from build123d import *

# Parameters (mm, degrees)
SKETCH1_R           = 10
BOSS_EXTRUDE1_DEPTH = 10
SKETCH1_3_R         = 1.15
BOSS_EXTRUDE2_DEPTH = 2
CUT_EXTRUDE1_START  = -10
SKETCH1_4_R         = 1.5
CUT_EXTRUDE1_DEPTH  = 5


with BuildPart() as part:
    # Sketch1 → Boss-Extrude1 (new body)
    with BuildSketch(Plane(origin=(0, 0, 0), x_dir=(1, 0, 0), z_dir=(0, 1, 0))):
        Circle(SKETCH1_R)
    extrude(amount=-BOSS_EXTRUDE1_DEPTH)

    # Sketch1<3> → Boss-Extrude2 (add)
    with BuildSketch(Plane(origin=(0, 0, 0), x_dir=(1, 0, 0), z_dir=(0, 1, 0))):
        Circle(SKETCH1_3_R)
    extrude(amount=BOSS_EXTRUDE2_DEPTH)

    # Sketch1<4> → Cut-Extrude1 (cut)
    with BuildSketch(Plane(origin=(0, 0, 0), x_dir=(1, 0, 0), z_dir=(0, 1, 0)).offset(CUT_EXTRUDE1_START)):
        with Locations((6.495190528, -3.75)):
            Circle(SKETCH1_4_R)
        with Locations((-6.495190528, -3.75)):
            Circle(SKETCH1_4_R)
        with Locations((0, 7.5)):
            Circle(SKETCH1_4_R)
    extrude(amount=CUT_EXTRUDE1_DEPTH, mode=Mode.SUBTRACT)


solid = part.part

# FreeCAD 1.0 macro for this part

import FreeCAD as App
import Part
import Sketcher
Q = App.Units.Quantity

doc = App.newDocument("Part")
body = doc.addObject("PartDesign::Body", "Body")

sketch1 = body.newObject("Sketcher::SketchObject", "Sketch")
sketch1.AttachmentSupport = (doc.getObject("XZ_Plane"), [""])
sketch1.MapMode = "FlatFace"
sketch1.addGeometry(Part.Circle(App.Vector(0, 0, 0), App.Vector(0, 0, 1), 10), False)
sketch1.addConstraint([
    Sketcher.Constraint("Coincident", 0, 3, -1, 1),
    Sketcher.Constraint("Diameter", 0, Q("20 mm")),
])
pad1 = body.newObject("PartDesign::Pad", "Pad")
pad1.Profile = sketch1
pad1.Length = 10

sketch2 = body.newObject("Sketcher::SketchObject", "Sketch001")
sketch2.AttachmentSupport = (doc.getObject("XZ_Plane"), [""])
sketch2.MapMode = "FlatFace"
sketch2.addGeometry(Part.Circle(App.Vector(0, 0, 0), App.Vector(0, 0, 1), 1.15), False)
sketch2.addConstraint([
    Sketcher.Constraint("Coincident", 0, 3, -1, 1),
    Sketcher.Constraint("Diameter", 0, Q("2.3 mm")),
])
pad2 = body.newObject("PartDesign::Pad", "Pad001")
pad2.Profile = sketch2
pad2.Length = 2
pad2.Reversed = True

sketch3 = body.newObject("Sketcher::SketchObject", "Sketch002")
sketch3.AttachmentSupport = (doc.getObject("XZ_Plane"), [""])
sketch3.MapMode = "FlatFace"
sketch3.AttachmentOffset = App.Placement(App.Vector(0, 0, 10), App.Rotation())
sketch3.addGeometry([
    Part.Circle(App.Vector(6.495191, 3.75, 0), App.Vector(0, 0, 1), 1.5),
    Part.Circle(App.Vector(-6.495191, 3.75, 0), App.Vector(0, 0, 1), 1.5),
    Part.Circle(App.Vector(0, -7.5, 0), App.Vector(0, 0, 1), 1.5),
], False)
sketch3.addConstraint([
    Sketcher.Constraint("Equal", 0, 1),
    Sketcher.Constraint("Equal", 1, 2),
    Sketcher.Constraint("Symmetric", 0, 3, 1, 3, -2),
    Sketcher.Constraint("PointOnObject", 2, 3, -2),
    Sketcher.Constraint("Diameter", 0, Q("3 mm")),
    Sketcher.Constraint("DistanceY", 2, 3, -1, 1, Q("7.5 mm")),
    Sketcher.Constraint("DistanceY", -1, 1, 0, 3, Q("3.75 mm")),
    Sketcher.Constraint("DistanceX", -1, 1, 0, 3, Q("6.495191 mm")),
])
pocket1 = body.newObject("PartDesign::Pocket", "Pocket")
pocket1.Profile = sketch3
pocket1.Length = 5

doc.recompute()
